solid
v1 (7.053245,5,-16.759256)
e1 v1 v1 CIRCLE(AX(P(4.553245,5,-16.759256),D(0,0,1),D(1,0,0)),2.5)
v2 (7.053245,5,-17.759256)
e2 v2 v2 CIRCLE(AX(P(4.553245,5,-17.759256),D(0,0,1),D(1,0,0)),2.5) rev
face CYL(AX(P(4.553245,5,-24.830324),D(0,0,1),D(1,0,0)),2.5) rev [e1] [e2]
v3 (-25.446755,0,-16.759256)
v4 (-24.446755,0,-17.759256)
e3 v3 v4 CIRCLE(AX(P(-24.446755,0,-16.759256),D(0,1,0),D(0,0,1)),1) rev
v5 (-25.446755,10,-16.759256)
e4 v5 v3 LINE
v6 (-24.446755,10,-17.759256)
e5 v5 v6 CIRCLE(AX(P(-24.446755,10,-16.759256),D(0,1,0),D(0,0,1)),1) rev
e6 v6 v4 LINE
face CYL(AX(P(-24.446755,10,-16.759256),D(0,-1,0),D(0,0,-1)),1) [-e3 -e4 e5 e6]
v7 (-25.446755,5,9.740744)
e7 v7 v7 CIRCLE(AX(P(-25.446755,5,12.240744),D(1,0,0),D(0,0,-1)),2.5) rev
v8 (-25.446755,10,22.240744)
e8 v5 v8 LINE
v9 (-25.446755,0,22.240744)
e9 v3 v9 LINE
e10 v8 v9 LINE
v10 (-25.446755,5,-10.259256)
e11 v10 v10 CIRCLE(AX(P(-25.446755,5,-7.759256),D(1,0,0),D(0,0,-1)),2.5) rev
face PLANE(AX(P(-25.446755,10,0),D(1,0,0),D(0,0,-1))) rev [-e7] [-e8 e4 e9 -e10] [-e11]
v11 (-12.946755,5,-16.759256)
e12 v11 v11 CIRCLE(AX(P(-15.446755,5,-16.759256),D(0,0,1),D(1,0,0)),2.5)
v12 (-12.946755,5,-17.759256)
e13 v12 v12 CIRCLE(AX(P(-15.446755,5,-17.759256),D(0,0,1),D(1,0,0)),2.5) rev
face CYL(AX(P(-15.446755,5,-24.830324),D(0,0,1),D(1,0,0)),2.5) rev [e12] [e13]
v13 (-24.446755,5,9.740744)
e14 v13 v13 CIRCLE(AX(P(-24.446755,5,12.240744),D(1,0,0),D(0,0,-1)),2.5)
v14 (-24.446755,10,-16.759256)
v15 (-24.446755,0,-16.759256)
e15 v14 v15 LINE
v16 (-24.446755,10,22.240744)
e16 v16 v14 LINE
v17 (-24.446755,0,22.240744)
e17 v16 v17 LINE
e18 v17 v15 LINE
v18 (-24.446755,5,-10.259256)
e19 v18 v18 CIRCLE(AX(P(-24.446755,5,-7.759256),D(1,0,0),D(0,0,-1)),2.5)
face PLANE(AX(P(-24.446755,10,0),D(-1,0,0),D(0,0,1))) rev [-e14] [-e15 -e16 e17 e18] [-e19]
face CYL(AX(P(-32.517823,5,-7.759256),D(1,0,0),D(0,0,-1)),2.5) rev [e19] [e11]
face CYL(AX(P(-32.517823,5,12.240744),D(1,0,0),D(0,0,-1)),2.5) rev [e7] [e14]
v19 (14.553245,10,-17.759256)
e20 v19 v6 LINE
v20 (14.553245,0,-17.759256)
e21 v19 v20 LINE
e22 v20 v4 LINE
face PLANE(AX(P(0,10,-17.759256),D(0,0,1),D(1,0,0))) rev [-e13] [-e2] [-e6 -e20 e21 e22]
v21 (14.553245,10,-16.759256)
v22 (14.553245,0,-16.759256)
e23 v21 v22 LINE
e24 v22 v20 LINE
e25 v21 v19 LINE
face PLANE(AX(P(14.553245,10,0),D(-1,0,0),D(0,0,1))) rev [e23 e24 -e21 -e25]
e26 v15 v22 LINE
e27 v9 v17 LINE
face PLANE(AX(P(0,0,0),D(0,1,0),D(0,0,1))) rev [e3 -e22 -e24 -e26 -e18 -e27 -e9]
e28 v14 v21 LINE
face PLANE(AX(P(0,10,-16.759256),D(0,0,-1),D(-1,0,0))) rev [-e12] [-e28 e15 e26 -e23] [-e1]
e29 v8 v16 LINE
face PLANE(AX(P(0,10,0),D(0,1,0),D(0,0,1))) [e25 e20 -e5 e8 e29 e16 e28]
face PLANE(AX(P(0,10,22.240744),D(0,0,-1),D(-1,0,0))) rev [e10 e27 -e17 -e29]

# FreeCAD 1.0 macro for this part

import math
import FreeCAD as App
import Part
import Sketcher
Q = App.Units.Quantity

doc = App.newDocument("Part")
body = doc.addObject("PartDesign::Body", "Body")

# Sketch on XZ plane
sketch1 = doc.addObject("Sketcher::SketchObject", "Sketch")
body.addObject(sketch1)
sketch1.AttachmentSupport = (doc.XZ_Plane, [""])
sketch1.MapMode = "FlatFace"
sketch1.addGeometry([
    Part.ArcOfCircle(Part.Circle(App.Vector(-24.4, -16.8, 0), App.Vector(0, 0, 1), 1), math.radians(-180), math.radians(-90)),  # 0
    Part.LineSegment(App.Vector(-25.4, -16.8, 0), App.Vector(-25.4, 22.2, 0)),  # 1
    Part.LineSegment(App.Vector(-25.4, 22.2, 0), App.Vector(-24.4, 22.2, 0)),  # 2
    Part.LineSegment(App.Vector(-24.4, 22.2, 0), App.Vector(-24.4, -16.8, 0)),  # 3
    Part.LineSegment(App.Vector(-24.4, -16.8, 0), App.Vector(14.6, -16.8, 0)),  # 4
    Part.LineSegment(App.Vector(14.6, -16.8, 0), App.Vector(14.6, -17.8, 0)),  # 5
    Part.LineSegment(App.Vector(14.6, -17.8, 0), App.Vector(-24.4, -17.8, 0)),  # 6
], False)
sketch1.addConstraint([
    Sketcher.Constraint("Tangent", 0, 1, 1, 1),
    Sketcher.Constraint("Coincident", 1, 2, 2, 1),
    Sketcher.Constraint("Coincident", 2, 2, 3, 1),
    Sketcher.Constraint("Coincident", 3, 2, 4, 1),
    Sketcher.Constraint("Coincident", 4, 2, 5, 1),
    Sketcher.Constraint("Coincident", 5, 2, 6, 1),
    Sketcher.Constraint("Tangent", 6, 2, 0, 2),
    Sketcher.Constraint("Vertical", 1),
    Sketcher.Constraint("Horizontal", 2),
    Sketcher.Constraint("Vertical", 3),
    Sketcher.Constraint("Horizontal", 4),
    Sketcher.Constraint("Vertical", 5),
    Sketcher.Constraint("Horizontal", 6),
    Sketcher.Constraint("Coincident", 3, 2, 0, 3),
    Sketcher.Constraint("Equal", 6, 1),
    Sketcher.Constraint("Radius", 0, Q("1 mm")),
    Sketcher.Constraint("DistanceX", 4, 1, 4, 2, Q("39 mm")),
    Sketcher.Constraint("DistanceX", 0, 3, -1, 1, Q("24.446755 mm")),
    Sketcher.Constraint("DistanceY", 0, 3, -1, 1, Q("16.759256 mm")),
])
pad1 = doc.addObject("PartDesign::Pad", "Pad")
body.addObject(pad1)
pad1.Profile = sketch1
pad1.Length = 10
pad1.Reversed = True

# Sketch on XY plane
sketch2 = doc.addObject("Sketcher::SketchObject", "Sketch001")
body.addObject(sketch2)
sketch2.AttachmentSupport = (doc.XY_Plane, [""])
sketch2.MapMode = "FlatFace"
sketch2.AttachmentOffset = App.Placement(App.Vector(0, 0, -16.759256), App.Rotation())
sketch2.addGeometry([
    Part.Circle(App.Vector(4.6, 5, 0), App.Vector(0, 0, 1), 2.5),
    Part.Circle(App.Vector(-15.4, 5, 0), App.Vector(0, 0, 1), 2.5),
], False)
sketch2.addConstraint([
    Sketcher.Constraint("Equal", 0, 1),
    Sketcher.Constraint("Horizontal", 0, 3, 1, 3),
    Sketcher.Constraint("Diameter", 0, Q("5 mm")),
    Sketcher.Constraint("DistanceY", -1, 1, 0, 3, Q("5 mm")),
    Sketcher.Constraint("DistanceX", 1, 3, 0, 3, Q("20 mm")),
    Sketcher.Constraint("DistanceX", -1, 1, 0, 3, Q("4.553245 mm")),
])
pocket1 = doc.addObject("PartDesign::Pocket", "Pocket")
body.addObject(pocket1)
pocket1.Profile = sketch2
pocket1.Length = 1

# Sketch on YZ plane
sketch3 = doc.addObject("Sketcher::SketchObject", "Sketch002")
body.addObject(sketch3)
sketch3.AttachmentSupport = (doc.YZ_Plane, [""])
sketch3.MapMode = "FlatFace"
sketch3.AttachmentOffset = App.Placement(App.Vector(0, 0, -24.446755), App.Rotation())
sketch3.addGeometry([
    Part.Circle(App.Vector(5, 12.2, 0), App.Vector(0, 0, 1), 2.5),
    Part.Circle(App.Vector(5, -7.8, 0), App.Vector(0, 0, 1), 2.5),
], False)
sketch3.addConstraint([
    Sketcher.Constraint("Equal", 0, 1),
    Sketcher.Constraint("Vertical", 0, 3, 1, 3),
    Sketcher.Constraint("Diameter", 0, Q("5 mm")),
    Sketcher.Constraint("DistanceX", -1, 1, 0, 3, Q("5 mm")),
    Sketcher.Constraint("DistanceY", 1, 3, 0, 3, Q("20 mm")),
    Sketcher.Constraint("DistanceY", -1, 1, 0, 3, Q("12.240744 mm")),
])
pocket2 = doc.addObject("PartDesign::Pocket", "Pocket001")
body.addObject(pocket2)
pocket2.Profile = sketch3
pocket2.Length = 1

doc.recompute()
